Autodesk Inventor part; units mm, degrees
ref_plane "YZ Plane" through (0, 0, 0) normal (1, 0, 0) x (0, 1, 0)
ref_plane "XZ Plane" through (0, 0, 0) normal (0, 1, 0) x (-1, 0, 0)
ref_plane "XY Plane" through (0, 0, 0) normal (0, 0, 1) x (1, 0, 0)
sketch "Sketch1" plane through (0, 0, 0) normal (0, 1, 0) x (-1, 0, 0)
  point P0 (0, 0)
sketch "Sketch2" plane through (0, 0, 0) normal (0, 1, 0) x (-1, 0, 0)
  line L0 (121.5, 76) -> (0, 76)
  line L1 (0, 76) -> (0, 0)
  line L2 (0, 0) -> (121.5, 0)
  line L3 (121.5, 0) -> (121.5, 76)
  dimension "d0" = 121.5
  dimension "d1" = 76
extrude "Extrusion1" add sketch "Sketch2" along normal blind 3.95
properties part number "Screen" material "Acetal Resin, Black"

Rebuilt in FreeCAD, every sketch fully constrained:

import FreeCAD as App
import Part
import Sketcher

V = App.Vector
Q = App.Units.Quantity

doc = App.newDocument("Part")
body = doc.addObject("PartDesign::Body", "Body")

# Sketch on XZ plane
sketch1 = body.newObject("Sketcher::SketchObject", "Sketch")
sketch1.AttachmentSupport = (doc.getObject("XZ_Plane"), [""])
sketch1.MapMode = "FlatFace"
sketch1.addGeometry([
    Part.LineSegment(V(-122, 0, 0), V(-122, 76, 0)),
    Part.LineSegment(V(-122, 76, 0), V(0, 76, 0)),
    Part.LineSegment(V(0, 76, 0), V(0, 0, 0)),
    Part.LineSegment(V(0, 0, 0), V(-122, 0, 0)),
], False)
sketch1.addConstraint([
    Sketcher.Constraint("Coincident", 0, 2, 1, 1),
    Sketcher.Constraint("Coincident", 1, 2, 2, 1),
    Sketcher.Constraint("Coincident", 2, 2, 3, 1),
    Sketcher.Constraint("Coincident", 3, 2, 0, 1),
    Sketcher.Constraint("Vertical", 0),
    Sketcher.Constraint("Horizontal", 1),
    Sketcher.Constraint("Vertical", 2),
    Sketcher.Constraint("Horizontal", 3),
    Sketcher.Constraint("Coincident", 2, 2, -1, 1),
    Sketcher.Constraint("DistanceY", 0, 1, 0, 2, Q("76 mm")),
    Sketcher.Constraint("DistanceX", 1, 1, 1, 2, Q("121.5 mm")),
])
pad1 = body.newObject("PartDesign::Pad", "Pad")
pad1.Profile = sketch1
pad1.Length = 3.95
pad1.Reversed = True

doc.recompute()
